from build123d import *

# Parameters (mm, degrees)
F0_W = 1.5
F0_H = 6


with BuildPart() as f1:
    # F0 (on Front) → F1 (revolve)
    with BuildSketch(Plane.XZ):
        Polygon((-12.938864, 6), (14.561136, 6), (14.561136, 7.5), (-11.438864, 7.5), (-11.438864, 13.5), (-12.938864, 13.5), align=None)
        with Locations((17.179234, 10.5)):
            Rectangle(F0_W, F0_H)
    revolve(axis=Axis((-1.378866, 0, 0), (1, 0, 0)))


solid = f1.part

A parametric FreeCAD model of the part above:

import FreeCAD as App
import Part
import Sketcher
from FreeCAD import Vector

doc = App.newDocument("Part")
body = doc.addObject("PartDesign::Body", "Body")
body.AllowCompound = True

# Sketch on XZ plane
sketch1 = body.newObject("Sketcher::SketchObject", "Sketch")
sketch1.AttachmentSupport = (doc.getObject("XZ_Plane"), [""])
sketch1.MapMode = "FlatFace"
sketch1.addGeometry([
    Part.LineSegment(Vector(-12.938864, 6, 0), Vector(14.561136, 6, 0)),  # 0
    Part.LineSegment(Vector(14.561136, 6, 0), Vector(14.561136, 7.5, 0)),  # 1
    Part.LineSegment(Vector(14.561136, 7.5, 0), Vector(-11.438864, 7.5, 0)),  # 2
    Part.LineSegment(Vector(-11.438864, 7.5, 0), Vector(-11.438864, 13.5, 0)),  # 3
    Part.LineSegment(Vector(-11.438864, 13.5, 0), Vector(-12.938864, 13.5, 0)),  # 4
    Part.LineSegment(Vector(-12.938864, 13.5, 0), Vector(-12.938864, 6, 0)),  # 5
    Part.LineSegment(Vector(16.429234, 13.5, 0), Vector(16.429234, 7.5, 0)),  # 6
    Part.LineSegment(Vector(16.429234, 7.5, 0), Vector(17.929234, 7.5, 0)),  # 7
    Part.LineSegment(Vector(17.929234, 7.5, 0), Vector(17.929234, 13.5, 0)),  # 8
    Part.LineSegment(Vector(17.929234, 13.5, 0), Vector(16.429234, 13.5, 0)),  # 9
], False)
sketch1.addConstraint([
    Sketcher.Constraint("Coincident", 0, 2, 1, 1),
    Sketcher.Constraint("Coincident", 1, 2, 2, 1),
    Sketcher.Constraint("Coincident", 2, 2, 3, 1),
    Sketcher.Constraint("Coincident", 3, 2, 4, 1),
    Sketcher.Constraint("Coincident", 4, 2, 5, 1),
    Sketcher.Constraint("Coincident", 5, 2, 0, 1),
    Sketcher.Constraint("Coincident", 6, 2, 7, 1),
    Sketcher.Constraint("Coincident", 7, 2, 8, 1),
    Sketcher.Constraint("Coincident", 8, 2, 9, 1),
    Sketcher.Constraint("Coincident", 9, 2, 6, 1),
    Sketcher.Constraint("Horizontal", 0),
    Sketcher.Constraint("Vertical", 1),
    Sketcher.Constraint("Horizontal", 2),
    Sketcher.Constraint("Vertical", 3),
    Sketcher.Constraint("Horizontal", 4),
    Sketcher.Constraint("Vertical", 5),
    Sketcher.Constraint("Vertical", 6),
    Sketcher.Constraint("Horizontal", 7),
    Sketcher.Constraint("Vertical", 8),
    Sketcher.Constraint("Horizontal", 9),
    Sketcher.Constraint("Horizontal", 2, 2, 6, 2),
    Sketcher.Constraint("Horizontal", 4, 2, 8, 2),
    Sketcher.Constraint("Equal", 4, 7),
    Sketcher.Constraint("Equal", 9, 1),
    Sketcher.Constraint("DistanceX", 2, 2, 2, 1, 26.0),
    Sketcher.Constraint("DistanceY", 3, 1, 3, 2, 6.0),
    Sketcher.Constraint("DistanceX", 0, 1, 0, 2, 27.5),
    Sketcher.Constraint("DistanceY", -1, 1, 0, 2, 6.0),
    Sketcher.Constraint("DistanceX", 1, 2, 6, 2, 1.868098),
    Sketcher.Constraint("DistanceX", -1, 1, 0, 2, 14.561136),
])
revolution = body.newObject("PartDesign::Revolution", "Revolution")
revolution.Profile = sketch1
revolution.ReferenceAxis = (sketch1, ["H_Axis"])
revolution.Angle = 360

doc.recompute()
